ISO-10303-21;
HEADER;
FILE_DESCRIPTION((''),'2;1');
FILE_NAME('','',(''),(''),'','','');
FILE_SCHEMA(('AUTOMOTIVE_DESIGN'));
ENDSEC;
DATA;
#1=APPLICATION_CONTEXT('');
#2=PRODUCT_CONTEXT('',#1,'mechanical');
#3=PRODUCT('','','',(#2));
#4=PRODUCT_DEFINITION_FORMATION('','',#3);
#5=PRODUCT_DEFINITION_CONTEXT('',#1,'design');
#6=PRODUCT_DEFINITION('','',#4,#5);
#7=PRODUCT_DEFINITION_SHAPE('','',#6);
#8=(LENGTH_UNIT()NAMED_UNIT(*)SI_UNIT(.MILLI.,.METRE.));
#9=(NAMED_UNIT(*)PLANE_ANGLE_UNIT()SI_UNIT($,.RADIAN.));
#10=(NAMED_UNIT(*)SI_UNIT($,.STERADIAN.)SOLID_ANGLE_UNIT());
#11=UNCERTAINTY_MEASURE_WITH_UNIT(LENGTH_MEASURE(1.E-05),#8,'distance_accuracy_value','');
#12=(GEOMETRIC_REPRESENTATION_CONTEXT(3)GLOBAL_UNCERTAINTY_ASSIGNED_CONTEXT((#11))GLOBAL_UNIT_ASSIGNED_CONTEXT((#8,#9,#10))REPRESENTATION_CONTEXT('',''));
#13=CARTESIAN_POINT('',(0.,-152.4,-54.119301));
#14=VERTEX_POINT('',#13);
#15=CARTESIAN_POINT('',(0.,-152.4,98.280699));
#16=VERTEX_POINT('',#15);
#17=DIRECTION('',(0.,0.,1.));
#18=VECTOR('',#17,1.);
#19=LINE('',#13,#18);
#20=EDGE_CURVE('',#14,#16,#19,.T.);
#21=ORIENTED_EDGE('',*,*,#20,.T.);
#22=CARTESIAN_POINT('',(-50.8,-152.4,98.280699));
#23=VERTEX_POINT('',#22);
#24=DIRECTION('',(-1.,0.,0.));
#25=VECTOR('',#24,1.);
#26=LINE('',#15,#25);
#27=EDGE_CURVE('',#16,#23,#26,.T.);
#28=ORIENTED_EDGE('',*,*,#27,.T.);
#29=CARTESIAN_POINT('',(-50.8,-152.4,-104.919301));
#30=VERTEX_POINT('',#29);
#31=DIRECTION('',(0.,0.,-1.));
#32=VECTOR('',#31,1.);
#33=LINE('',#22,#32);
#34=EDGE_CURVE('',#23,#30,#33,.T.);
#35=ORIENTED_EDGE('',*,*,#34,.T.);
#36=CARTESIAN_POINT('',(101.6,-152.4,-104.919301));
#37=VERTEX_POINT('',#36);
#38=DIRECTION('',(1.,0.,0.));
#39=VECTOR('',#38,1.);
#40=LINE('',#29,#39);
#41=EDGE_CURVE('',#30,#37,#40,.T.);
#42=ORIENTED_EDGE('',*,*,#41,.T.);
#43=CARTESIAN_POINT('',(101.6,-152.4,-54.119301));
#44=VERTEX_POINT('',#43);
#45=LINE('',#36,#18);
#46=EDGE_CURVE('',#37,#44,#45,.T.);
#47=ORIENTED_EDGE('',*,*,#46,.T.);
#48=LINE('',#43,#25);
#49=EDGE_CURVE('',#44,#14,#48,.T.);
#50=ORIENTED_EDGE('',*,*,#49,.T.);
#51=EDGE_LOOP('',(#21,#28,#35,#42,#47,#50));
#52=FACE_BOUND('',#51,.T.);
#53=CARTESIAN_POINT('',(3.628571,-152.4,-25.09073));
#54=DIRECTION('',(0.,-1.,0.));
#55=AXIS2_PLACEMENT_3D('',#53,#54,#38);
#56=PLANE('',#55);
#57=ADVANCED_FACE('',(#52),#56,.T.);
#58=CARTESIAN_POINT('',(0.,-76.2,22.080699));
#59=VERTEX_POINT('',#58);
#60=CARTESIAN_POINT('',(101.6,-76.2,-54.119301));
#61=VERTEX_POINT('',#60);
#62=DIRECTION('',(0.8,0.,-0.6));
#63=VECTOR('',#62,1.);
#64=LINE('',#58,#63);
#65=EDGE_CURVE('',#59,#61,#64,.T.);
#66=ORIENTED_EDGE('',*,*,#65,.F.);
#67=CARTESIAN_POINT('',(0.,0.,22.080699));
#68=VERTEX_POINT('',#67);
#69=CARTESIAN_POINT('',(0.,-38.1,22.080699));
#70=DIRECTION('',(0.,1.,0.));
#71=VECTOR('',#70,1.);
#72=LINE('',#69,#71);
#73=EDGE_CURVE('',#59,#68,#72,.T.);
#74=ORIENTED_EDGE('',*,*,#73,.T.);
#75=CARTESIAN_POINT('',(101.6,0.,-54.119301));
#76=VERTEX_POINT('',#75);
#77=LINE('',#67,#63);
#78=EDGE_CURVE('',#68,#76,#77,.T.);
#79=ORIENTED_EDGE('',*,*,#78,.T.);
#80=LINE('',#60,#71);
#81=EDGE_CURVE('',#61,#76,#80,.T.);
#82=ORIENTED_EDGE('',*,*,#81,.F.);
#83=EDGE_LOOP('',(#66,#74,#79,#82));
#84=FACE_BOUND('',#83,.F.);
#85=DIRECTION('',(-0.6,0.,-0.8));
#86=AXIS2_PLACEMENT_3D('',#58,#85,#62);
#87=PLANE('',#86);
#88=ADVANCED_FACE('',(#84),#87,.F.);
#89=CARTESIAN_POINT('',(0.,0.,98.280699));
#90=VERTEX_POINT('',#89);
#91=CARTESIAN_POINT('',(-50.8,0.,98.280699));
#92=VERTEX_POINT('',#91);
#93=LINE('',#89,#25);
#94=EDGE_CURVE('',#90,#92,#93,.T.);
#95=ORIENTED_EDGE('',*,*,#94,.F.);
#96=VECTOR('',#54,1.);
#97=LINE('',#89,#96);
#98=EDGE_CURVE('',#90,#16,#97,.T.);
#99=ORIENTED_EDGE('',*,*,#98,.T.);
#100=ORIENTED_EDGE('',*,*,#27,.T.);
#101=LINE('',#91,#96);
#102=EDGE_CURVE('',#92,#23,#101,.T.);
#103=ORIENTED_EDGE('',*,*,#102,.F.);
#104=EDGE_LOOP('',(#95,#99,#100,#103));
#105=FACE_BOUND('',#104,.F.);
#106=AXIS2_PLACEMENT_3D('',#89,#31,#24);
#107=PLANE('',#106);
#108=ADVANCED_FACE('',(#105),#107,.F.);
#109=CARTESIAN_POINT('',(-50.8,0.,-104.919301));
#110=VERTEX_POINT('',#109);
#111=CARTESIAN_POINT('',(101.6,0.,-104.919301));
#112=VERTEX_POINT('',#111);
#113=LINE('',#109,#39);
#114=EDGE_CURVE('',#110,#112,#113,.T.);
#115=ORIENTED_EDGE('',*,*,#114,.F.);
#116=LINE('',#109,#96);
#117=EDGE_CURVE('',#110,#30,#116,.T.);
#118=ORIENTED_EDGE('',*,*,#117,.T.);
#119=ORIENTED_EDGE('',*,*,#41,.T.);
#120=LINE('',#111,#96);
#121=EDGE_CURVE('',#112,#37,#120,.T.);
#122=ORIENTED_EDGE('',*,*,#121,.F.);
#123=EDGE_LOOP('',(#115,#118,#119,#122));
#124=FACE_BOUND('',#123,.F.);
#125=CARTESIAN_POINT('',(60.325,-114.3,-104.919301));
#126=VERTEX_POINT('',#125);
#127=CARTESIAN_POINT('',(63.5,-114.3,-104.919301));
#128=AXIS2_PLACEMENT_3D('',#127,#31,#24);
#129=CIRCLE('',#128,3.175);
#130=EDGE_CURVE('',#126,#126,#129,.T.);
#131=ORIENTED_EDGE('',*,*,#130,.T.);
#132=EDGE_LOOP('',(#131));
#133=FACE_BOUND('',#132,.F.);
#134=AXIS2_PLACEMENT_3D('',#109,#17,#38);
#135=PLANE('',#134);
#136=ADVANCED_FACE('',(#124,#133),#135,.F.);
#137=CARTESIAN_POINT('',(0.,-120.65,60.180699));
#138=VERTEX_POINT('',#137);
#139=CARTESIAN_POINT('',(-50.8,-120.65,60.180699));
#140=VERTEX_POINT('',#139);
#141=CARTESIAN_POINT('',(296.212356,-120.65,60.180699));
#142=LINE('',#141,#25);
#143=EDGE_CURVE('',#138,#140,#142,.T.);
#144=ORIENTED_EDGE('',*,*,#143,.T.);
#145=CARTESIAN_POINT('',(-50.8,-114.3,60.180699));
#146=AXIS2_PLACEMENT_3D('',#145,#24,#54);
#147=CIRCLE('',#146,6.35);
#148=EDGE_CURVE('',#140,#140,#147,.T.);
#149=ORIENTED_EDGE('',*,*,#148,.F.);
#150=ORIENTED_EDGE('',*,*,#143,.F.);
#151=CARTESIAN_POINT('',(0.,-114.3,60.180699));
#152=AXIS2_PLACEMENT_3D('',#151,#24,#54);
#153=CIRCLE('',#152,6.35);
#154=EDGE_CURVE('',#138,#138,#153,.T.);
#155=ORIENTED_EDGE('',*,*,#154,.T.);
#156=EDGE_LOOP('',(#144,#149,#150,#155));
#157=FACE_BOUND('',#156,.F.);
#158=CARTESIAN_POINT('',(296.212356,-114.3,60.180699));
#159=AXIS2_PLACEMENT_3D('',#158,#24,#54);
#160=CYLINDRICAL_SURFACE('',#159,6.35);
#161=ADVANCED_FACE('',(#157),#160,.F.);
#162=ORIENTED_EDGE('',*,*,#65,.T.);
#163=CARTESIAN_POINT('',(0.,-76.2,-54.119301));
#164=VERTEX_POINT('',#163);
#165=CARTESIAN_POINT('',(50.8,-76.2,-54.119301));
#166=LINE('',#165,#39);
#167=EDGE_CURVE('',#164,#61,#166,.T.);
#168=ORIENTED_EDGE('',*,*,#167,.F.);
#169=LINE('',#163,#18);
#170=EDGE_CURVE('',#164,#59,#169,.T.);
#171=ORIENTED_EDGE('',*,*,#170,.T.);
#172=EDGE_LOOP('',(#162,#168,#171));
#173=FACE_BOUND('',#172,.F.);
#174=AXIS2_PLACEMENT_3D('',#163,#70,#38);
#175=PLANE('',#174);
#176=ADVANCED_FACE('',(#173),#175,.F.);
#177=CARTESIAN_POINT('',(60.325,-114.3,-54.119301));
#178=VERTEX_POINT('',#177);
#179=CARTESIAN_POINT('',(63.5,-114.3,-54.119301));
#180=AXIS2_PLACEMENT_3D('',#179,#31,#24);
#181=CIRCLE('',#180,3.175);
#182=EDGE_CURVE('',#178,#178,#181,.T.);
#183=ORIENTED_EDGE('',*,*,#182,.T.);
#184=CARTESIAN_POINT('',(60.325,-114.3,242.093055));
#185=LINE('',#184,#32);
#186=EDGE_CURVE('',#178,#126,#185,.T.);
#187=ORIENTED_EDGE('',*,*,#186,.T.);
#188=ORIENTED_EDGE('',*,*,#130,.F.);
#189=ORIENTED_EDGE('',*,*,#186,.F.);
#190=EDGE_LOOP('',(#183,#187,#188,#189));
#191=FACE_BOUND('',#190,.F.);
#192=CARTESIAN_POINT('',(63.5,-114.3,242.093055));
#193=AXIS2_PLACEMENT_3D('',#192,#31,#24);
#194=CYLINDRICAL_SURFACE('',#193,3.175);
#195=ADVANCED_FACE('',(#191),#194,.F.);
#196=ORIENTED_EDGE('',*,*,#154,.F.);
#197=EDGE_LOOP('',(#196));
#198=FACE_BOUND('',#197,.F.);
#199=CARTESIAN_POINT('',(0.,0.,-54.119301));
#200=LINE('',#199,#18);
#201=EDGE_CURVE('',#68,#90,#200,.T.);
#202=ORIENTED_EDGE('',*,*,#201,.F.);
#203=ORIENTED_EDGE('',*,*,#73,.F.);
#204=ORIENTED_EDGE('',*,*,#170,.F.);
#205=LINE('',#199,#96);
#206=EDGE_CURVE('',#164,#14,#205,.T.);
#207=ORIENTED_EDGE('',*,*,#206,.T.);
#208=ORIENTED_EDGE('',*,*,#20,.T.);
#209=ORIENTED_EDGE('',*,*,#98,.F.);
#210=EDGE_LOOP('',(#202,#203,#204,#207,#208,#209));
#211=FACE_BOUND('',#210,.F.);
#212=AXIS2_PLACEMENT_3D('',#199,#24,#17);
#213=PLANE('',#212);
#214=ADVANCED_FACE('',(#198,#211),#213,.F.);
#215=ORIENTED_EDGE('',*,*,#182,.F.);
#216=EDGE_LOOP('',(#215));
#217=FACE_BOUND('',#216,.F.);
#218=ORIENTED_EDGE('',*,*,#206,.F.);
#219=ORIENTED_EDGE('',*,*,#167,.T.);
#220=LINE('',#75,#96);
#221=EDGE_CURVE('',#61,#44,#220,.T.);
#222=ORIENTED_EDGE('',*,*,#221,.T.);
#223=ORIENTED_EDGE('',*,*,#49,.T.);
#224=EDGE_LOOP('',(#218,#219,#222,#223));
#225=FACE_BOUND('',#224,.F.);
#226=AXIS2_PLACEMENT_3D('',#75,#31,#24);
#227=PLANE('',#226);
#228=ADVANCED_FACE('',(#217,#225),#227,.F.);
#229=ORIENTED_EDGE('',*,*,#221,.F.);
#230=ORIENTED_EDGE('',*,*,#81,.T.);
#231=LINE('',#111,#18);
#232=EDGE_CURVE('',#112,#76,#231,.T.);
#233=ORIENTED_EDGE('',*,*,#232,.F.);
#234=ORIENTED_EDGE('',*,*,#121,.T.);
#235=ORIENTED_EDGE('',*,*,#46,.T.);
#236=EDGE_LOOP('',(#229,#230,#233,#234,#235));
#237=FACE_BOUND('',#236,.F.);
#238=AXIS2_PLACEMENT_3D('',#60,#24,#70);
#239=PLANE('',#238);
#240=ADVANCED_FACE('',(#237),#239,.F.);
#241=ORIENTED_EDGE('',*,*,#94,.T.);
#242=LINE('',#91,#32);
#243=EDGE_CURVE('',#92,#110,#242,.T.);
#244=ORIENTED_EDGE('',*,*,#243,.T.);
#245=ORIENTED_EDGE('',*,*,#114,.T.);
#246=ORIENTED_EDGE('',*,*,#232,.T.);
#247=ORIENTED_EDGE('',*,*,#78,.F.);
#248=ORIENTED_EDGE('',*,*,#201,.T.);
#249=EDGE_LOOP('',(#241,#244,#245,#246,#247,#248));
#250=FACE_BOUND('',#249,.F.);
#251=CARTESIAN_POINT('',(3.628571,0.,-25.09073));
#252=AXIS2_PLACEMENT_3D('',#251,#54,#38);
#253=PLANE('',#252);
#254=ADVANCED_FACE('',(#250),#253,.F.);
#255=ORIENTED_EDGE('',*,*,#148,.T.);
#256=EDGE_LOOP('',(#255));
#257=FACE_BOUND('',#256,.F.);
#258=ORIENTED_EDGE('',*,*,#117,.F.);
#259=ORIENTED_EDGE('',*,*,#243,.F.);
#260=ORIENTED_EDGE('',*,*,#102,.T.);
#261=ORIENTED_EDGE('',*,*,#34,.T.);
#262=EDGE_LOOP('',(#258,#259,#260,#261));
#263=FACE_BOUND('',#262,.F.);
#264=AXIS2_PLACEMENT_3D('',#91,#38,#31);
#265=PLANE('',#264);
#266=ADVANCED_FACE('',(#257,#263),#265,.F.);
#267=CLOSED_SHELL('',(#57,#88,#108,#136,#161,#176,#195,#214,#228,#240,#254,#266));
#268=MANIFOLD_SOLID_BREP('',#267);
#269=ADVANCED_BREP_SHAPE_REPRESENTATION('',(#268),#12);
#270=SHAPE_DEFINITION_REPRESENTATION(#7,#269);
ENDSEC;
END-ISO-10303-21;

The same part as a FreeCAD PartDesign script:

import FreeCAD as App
import Part
import Sketcher

V = App.Vector
Q = App.Units.Quantity


def add_polygon(sketch, points):
    """Adds a closed chain of lines whose ends are joined by coincident constraints."""
    first, n = sketch.GeometryCount, len(points)
    for a, b in zip(points, points[1:] + points[:1]):
        sketch.addGeometry(Part.LineSegment(App.Vector(*a, 0), App.Vector(*b, 0)), False)
    for i in range(n):
        sketch.addConstraint(Sketcher.Constraint("Coincident", first + i, 2, first + (i + 1) % n, 1))

doc = App.newDocument("Part")
body = doc.addObject("PartDesign::Body", "Body")

# Sketch on XZ plane
sketch1 = doc.addObject("Sketcher::SketchObject", "Sketch")
body.addObject(sketch1)
sketch1.AttachmentSupport = (doc.XZ_Plane, [""])
sketch1.MapMode = "FlatFace"
add_polygon(sketch1, [(0, 98.280699), (-50.8, 98.280699), (-50.8, -104.919301), (101.6, -104.919301), (101.6, -54.119301), (0, -54.119301)])  # lines 0-5
sketch1.addConstraint(Sketcher.Constraint("Horizontal", 0))
sketch1.addConstraint(Sketcher.Constraint("Vertical", 1))
sketch1.addConstraint(Sketcher.Constraint("Horizontal", 2))
sketch1.addConstraint(Sketcher.Constraint("Vertical", 3))
sketch1.addConstraint(Sketcher.Constraint("Horizontal", 4))
sketch1.addConstraint(Sketcher.Constraint("Vertical", 5))
sketch1.addConstraint(Sketcher.Constraint("PointOnObject", 4, 2, -2))
sketch1.addConstraint(Sketcher.Constraint("Equal", 0, 3))
sketch1.addConstraint(Sketcher.Constraint("Equal", 2, 5))
sketch1.addConstraint(Sketcher.Constraint("DistanceX", 0, 2, 0, 1, Q("2 in")))
sketch1.addConstraint(Sketcher.Constraint("DistanceX", 2, 1, 2, 2, Q("6 in")))
sketch1.addConstraint(Sketcher.Constraint("DistanceY", -1, 1, 0, 2, 98.280699))
pad1 = doc.addObject("PartDesign::Pad", "Pad")
body.addObject(pad1)
pad1.Profile = sketch1
pad1.Length = Q("6 in")

# Sketch on XY plane
sketch2 = doc.addObject("Sketcher::SketchObject", "Sketch001")
body.addObject(sketch2)
sketch2.AttachmentSupport = (doc.XY_Plane, [""])
sketch2.MapMode = "FlatFace"
sketch2.AttachmentOffset = App.Placement(V(0, 0, -54.119301), App.Rotation())
add_polygon(sketch2, [(0, 0), (0, -76.2), (101.6, -76.2), (101.6, 0)])  # lines 0-3
sketch2.addConstraint(Sketcher.Constraint("Vertical", 0))
sketch2.addConstraint(Sketcher.Constraint("Horizontal", 1))
sketch2.addConstraint(Sketcher.Constraint("Vertical", 2))
sketch2.addConstraint(Sketcher.Constraint("Horizontal", 3))
sketch2.addConstraint(Sketcher.Constraint("Coincident", 3, 2, -1, 1))
sketch2.addConstraint(Sketcher.Constraint("DistanceX", 1, 1, 1, 2, Q("4 in")))
sketch2.addConstraint(Sketcher.Constraint("DistanceY", 0, 2, 0, 1, Q("3 in")))
pad2 = doc.addObject("PartDesign::Pad", "Pad001")
body.addObject(pad2)
pad2.Profile = sketch2
pad2.Length = Q("3 in")

# Sketch on XZ plane
sketch3 = doc.addObject("Sketcher::SketchObject", "Sketch002")
body.addObject(sketch3)
sketch3.AttachmentSupport = (doc.XZ_Plane, [""])
sketch3.MapMode = "FlatFace"
sketch3.AttachmentOffset = App.Placement(V(0, 0, 3 * 25.4), App.Rotation())
add_polygon(sketch3, [(101.6, 22.080699), (0, 22.080699), (101.6, -54.119301)])  # lines 0-2
sketch3.addConstraint(Sketcher.Constraint("Horizontal", 0))
sketch3.addConstraint(Sketcher.Constraint("Vertical", 2))
sketch3.addConstraint(Sketcher.Constraint("PointOnObject", 0, 2, -2))
sketch3.addConstraint(Sketcher.Constraint("DistanceX", 0, 2, 0, 1, Q("4 in")))
sketch3.addConstraint(Sketcher.Constraint("DistanceY", 2, 1, 2, 2, Q("3 in")))
sketch3.addConstraint(Sketcher.Constraint("DistanceY", -1, 1, 0, 2, 22.080699))
pocket1 = doc.addObject("PartDesign::Pocket", "Pocket")
body.addObject(pocket1)
pocket1.Profile = sketch3
pocket1.Length = Q("3 in")

# Sketch on YZ plane
sketch4 = doc.addObject("Sketcher::SketchObject", "Sketch003")
body.addObject(sketch4)
sketch4.AttachmentSupport = (doc.YZ_Plane, [""])
sketch4.MapMode = "FlatFace"
sketch4.addGeometry(Part.Circle(V(-114.3, 60.180699, 0), V(0, 0, 1), 6.35), False)
sketch4.addConstraint(Sketcher.Constraint("Diameter", 0, Q("0.5 in")))
sketch4.addConstraint(Sketcher.Constraint("DistanceX", 0, 3, -1, 1, Q("4.5 in")))
sketch4.addConstraint(Sketcher.Constraint("DistanceY", -1, 1, 0, 3, 60.180699))
doc.recompute()
hole = doc.addObject("PartDesign::Hole", "Hole")
body.addObject(hole)
hole.Profile = sketch4
hole.ThreadType = "None"
hole.Diameter = Q("0.5 in")
hole.DepthType = "ThroughAll"

# Sketch on XY plane
sketch5 = doc.addObject("Sketcher::SketchObject", "Sketch004")
body.addObject(sketch5)
sketch5.AttachmentSupport = (doc.XY_Plane, [""])
sketch5.MapMode = "FlatFace"
sketch5.AttachmentOffset = App.Placement(V(0, 0, -54.119301), App.Rotation())
sketch5.addGeometry(Part.Circle(V(63.5, -114.3, 0), V(0, 0, 1), 3.175), False)
sketch5.addConstraint(Sketcher.Constraint("Diameter", 0, Q("0.25 in")))
sketch5.addConstraint(Sketcher.Constraint("DistanceX", -1, 1, 0, 3, Q("2.5 in")))
sketch5.addConstraint(Sketcher.Constraint("DistanceY", 0, 3, -1, 1, Q("4.5 in")))
doc.recompute()
hole2 = doc.addObject("PartDesign::Hole", "Hole001")
body.addObject(hole2)
hole2.Profile = sketch5
hole2.ThreadType = "None"
hole2.Diameter = Q("0.25 in")
hole2.DepthType = "ThroughAll"

doc.recompute()
